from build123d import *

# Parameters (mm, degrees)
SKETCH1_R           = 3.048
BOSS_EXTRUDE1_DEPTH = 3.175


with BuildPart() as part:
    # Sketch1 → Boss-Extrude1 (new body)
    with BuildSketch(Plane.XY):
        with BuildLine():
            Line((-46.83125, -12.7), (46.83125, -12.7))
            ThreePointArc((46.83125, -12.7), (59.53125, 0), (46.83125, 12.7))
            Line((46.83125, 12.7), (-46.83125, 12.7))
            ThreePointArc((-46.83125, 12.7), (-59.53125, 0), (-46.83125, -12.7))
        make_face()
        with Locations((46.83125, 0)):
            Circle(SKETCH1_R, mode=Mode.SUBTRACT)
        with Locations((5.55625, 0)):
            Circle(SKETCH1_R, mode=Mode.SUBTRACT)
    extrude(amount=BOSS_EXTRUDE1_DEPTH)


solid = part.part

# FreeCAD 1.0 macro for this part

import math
import FreeCAD as App
import Part
import Sketcher

V = App.Vector
Q = App.Units.Quantity

doc = App.newDocument("Part")
params = doc.addObject("Spreadsheet::Sheet", "Params")
for row, (alias, value) in enumerate([
    ("sketch1_radius", "0.5 in"),
    ("sketch1_diameter", "0.24 in"),
    ("sketch1_width", "3.6875 in"),
    ("pad1_length", "0.125 in"),
], start=1):
    params.set(f"A{row}", alias)
    params.set(f"B{row}", "=" + value)
    params.setAlias(f"B{row}", alias)

body = doc.addObject("PartDesign::Body", "Body")

# Sketch on XY plane
sketch1 = body.newObject("Sketcher::SketchObject", "Sketch")
sketch1.AttachmentSupport = (doc.getObject("XY_Plane"), [""])
sketch1.MapMode = "FlatFace"
sketch1.addGeometry(Part.LineSegment(V(-46.83125, -12.7, 0), V(46.83125, -12.7, 0)), False)
sketch1.addGeometry(Part.ArcOfCircle(Part.Circle(V(46.83125, 0, 0), V(0, 0, 1), 12.7), math.radians(-90), math.radians(90)), False)
sketch1.addGeometry(Part.LineSegment(V(46.83125, 12.7, 0), V(-46.83125, 12.7, 0)), False)
sketch1.addGeometry(Part.ArcOfCircle(Part.Circle(V(-46.83125, 0, 0), V(0, 0, 1), 12.7), math.radians(90), math.radians(270)), False)
sketch1.addGeometry(Part.Circle(V(5.55625, 0, 0), V(0, 0, 1), 3.048), False)
sketch1.addGeometry(Part.Circle(V(46.83125, 0, 0), V(0, 0, 1), 3.048), False)
sketch1.addConstraint(Sketcher.Constraint("Tangent", 0, 2, 1, 1))
sketch1.addConstraint(Sketcher.Constraint("Tangent", 1, 2, 2, 1))
sketch1.addConstraint(Sketcher.Constraint("Tangent", 2, 2, 3, 1))
sketch1.addConstraint(Sketcher.Constraint("Tangent", 3, 2, 0, 1))
sketch1.addConstraint(Sketcher.Constraint("Horizontal", 0))
sketch1.addConstraint(Sketcher.Constraint("Horizontal", 2))
sketch1.addConstraint(Sketcher.Constraint("Coincident", 5, 3, 1, 3))
sketch1.addConstraint(Sketcher.Constraint("Equal", 4, 5))
sketch1.addConstraint(Sketcher.Constraint("Symmetric", 1, 3, 3, 3, -1, 1))
sketch1.addConstraint(Sketcher.Constraint("PointOnObject", 4, 3, -1))
sketch1.addConstraint(Sketcher.Constraint("Radius", 1, Q("0.5 in")))
sketch1.addConstraint(Sketcher.Constraint("Diameter", 4, Q("0.24 in")))
sketch1.addConstraint(Sketcher.Constraint("DistanceX", 0, 1, 0, 2, Q("3.6875 in")))
sketch1.addConstraint(Sketcher.Constraint("DistanceX", -1, 1, 4, 3, Q("0.21875 in")))
sketch1.setExpression("Constraints[10]", "Params.sketch1_radius")
sketch1.setExpression("Constraints[11]", "Params.sketch1_diameter")
sketch1.setExpression("Constraints[12]", "Params.sketch1_width")
pad1 = body.newObject("PartDesign::Pad", "Pad")
pad1.Profile = sketch1
pad1.setExpression("Length", "Params.pad1_length")

doc.recompute()
